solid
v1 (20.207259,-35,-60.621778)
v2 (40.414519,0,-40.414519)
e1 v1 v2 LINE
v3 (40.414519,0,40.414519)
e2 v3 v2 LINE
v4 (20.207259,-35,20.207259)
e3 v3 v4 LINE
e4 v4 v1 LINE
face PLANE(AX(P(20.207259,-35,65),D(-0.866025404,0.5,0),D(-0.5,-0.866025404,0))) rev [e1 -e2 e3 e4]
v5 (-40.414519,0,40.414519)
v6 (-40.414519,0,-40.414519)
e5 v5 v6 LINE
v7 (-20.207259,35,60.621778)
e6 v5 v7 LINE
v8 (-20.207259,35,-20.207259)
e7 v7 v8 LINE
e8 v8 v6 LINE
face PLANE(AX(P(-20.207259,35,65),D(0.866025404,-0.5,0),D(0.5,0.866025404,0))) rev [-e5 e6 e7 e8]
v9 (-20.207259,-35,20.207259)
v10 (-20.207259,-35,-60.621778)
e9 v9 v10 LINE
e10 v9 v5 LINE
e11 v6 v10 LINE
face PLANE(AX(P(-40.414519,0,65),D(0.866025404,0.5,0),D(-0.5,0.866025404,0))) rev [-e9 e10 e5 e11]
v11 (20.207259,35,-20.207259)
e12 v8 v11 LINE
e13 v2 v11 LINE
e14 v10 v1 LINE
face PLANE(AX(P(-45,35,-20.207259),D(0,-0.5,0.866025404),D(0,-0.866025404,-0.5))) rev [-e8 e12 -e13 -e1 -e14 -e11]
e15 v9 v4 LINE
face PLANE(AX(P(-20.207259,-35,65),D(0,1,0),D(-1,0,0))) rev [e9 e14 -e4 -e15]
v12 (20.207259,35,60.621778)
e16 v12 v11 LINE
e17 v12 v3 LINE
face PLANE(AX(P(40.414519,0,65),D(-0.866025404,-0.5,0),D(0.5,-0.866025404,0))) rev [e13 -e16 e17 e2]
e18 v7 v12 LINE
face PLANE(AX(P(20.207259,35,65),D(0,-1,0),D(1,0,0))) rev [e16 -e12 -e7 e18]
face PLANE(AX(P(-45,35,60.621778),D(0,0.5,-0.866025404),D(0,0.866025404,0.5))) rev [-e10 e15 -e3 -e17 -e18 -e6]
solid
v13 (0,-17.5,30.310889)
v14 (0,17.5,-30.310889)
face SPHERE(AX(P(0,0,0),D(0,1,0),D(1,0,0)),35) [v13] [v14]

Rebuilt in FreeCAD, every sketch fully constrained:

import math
import FreeCAD as App
import Part
import Sketcher
from FreeCAD import Vector
Q = App.Units.Quantity


def add_polygon(sketch, points):
    """Adds a closed chain of lines whose ends are joined by coincident constraints."""
    first, n = sketch.GeometryCount, len(points)
    for a, b in zip(points, points[1:] + points[:1]):
        sketch.addGeometry(Part.LineSegment(App.Vector(*a, 0), App.Vector(*b, 0)), False)
    for i in range(n):
        sketch.addConstraint(Sketcher.Constraint("Coincident", first + i, 2, first + (i + 1) % n, 1))

doc = App.newDocument("Part")
params = doc.addObject("Spreadsheet::Sheet", "Params")
for row, (alias, value) in enumerate([
    ("pad1_length", "130 mm"),
    ("sketch2_width", "70 mm"),
    ("pocket1_length", "90 mm"),
    ("sketch3_radius", "35 mm"),
    ("revolution_angle", "360 deg"),
], start=1):
    params.set(f"A{row}", alias)
    params.set(f"B{row}", "=" + value)
    params.setAlias(f"B{row}", alias)

body = doc.addObject("PartDesign::Body", "Body")

sketch1 = doc.addObject("Sketcher::SketchObject", "Sketch")
body.addObject(sketch1)
sketch1.AttachmentSupport = (doc.XY_Plane, [""])
sketch1.MapMode = "FlatFace"
add_polygon(sketch1, [(40, 0), (20, 35), (-20, 35), (-40, 0), (-20, -35), (20, -35)])
sketch1.addConstraint(Sketcher.Constraint("Horizontal", 1))
sketch1.addConstraint(Sketcher.Constraint("Horizontal", 4))
sketch1.addConstraint(Sketcher.Constraint("Symmetric", 0, 2, 3, 2, -1, 1))
sketch1.addConstraint(Sketcher.Constraint("Symmetric", 2, 2, 5, 2, -1, 1))
sketch1.addConstraint(Sketcher.Constraint("PointOnObject", 2, 2, -1))
sketch1.addConstraint(Sketcher.Constraint("Parallel", 2, 5))
sketch1.addConstraint(Sketcher.Constraint("Vertical", 1, 2, 3, 2))
sketch1.addConstraint(Sketcher.Constraint("Angle", 0, Q("120 deg")))
sketch1.addConstraint(Sketcher.Constraint("DistanceY", -1, 1, 0, 2, 35.0))
sketch1.addConstraint(Sketcher.Constraint("DistanceX", 1, 2, 1, 1, 40.414519))
pad1 = doc.addObject("PartDesign::Pad", "Pad")
body.addObject(pad1)
pad1.Profile = sketch1
pad1.setExpression("Length", "Params.pad1_length")
pad1.Midplane = True

sketch2 = doc.addObject("Sketcher::SketchObject", "Sketch001")
body.addObject(sketch2)
sketch2.AttachmentSupport = (doc.YZ_Plane, [""])
sketch2.MapMode = "FlatFace"
add_polygon(sketch2, [(-35, -65), (35, -65), (35, -20.2), (-35, -60.6)])
add_polygon(sketch2, [(-35, 20.2), (35, 60.6), (35, 65), (-35, 65)])
sketch2.addConstraint(Sketcher.Constraint("Horizontal", 0))
sketch2.addConstraint(Sketcher.Constraint("Vertical", 1))
sketch2.addConstraint(Sketcher.Constraint("Vertical", 3))
sketch2.addConstraint(Sketcher.Constraint("Vertical", 5))
sketch2.addConstraint(Sketcher.Constraint("Horizontal", 6))
sketch2.addConstraint(Sketcher.Constraint("Vertical", 7))
sketch2.addConstraint(Sketcher.Constraint("Symmetric", 2, 2, 4, 2, -1, 1))
sketch2.addConstraint(Sketcher.Constraint("Symmetric", 0, 2, 6, 2, -1, 1))
sketch2.addConstraint(Sketcher.Constraint("Parallel", 2, 4))
sketch2.addConstraint(Sketcher.Constraint("Vertical", 1, 2, 4, 2))
sketch2.addConstraint(Sketcher.Constraint("DistanceX", 0, 1, 0, 2, 70.0))
sketch2.addConstraint(Sketcher.Constraint("Angle", 2, Q("-150 deg")))
sketch2.addConstraint(Sketcher.Constraint("DistanceY", 0, 2, -1, 1, 65.0))
sketch2.addConstraint(Sketcher.Constraint("DistanceY", 1, 1, 1, 2, 44.792741))
sketch2.setExpression("Constraints[18]", "Params.sketch2_width")
pocket1 = doc.addObject("PartDesign::Pocket", "Pocket")
body.addObject(pocket1)
pocket1.Profile = sketch2
pocket1.setExpression("Length", "Params.pocket1_length")
pocket1.Midplane = True
body2 = doc.addObject("PartDesign::Body", "Body001")

sketch3 = doc.addObject("Sketcher::SketchObject", "Sketch002")
body2.addObject(sketch3)
sketch3.AttachmentSupport = (doc.getObject("XY_Plane001"), [""])
sketch3.MapMode = "FlatFace"
sketch3.addGeometry(Part.LineSegment(Vector(0, 35, 0), Vector(0, -35, 0)), False)
sketch3.addGeometry(Part.ArcOfCircle(Part.Circle(Vector(0, 0, 0), Vector(0, 0, 1), 35), math.radians(-90), math.radians(90)), False)
sketch3.addConstraint(Sketcher.Constraint("Coincident", 0, 1, 1, 2))
sketch3.addConstraint(Sketcher.Constraint("Coincident", 1, 1, 0, 2))
sketch3.addConstraint(Sketcher.Constraint("Vertical", 0))
sketch3.addConstraint(Sketcher.Constraint("Coincident", 1, 3, -1, 1))
sketch3.addConstraint(Sketcher.Constraint("PointOnObject", 0, 1, -2))
sketch3.addConstraint(Sketcher.Constraint("Radius", 1, 35.0))
sketch3.setExpression("Constraints[5]", "Params.sketch3_radius")
revolution = doc.addObject("PartDesign::Revolution", "Revolution")
body2.addObject(revolution)
revolution.Profile = sketch3
revolution.ReferenceAxis = (sketch3, ["V_Axis"])
revolution.setExpression("Angle", "Params.revolution_angle")

doc.recompute()
